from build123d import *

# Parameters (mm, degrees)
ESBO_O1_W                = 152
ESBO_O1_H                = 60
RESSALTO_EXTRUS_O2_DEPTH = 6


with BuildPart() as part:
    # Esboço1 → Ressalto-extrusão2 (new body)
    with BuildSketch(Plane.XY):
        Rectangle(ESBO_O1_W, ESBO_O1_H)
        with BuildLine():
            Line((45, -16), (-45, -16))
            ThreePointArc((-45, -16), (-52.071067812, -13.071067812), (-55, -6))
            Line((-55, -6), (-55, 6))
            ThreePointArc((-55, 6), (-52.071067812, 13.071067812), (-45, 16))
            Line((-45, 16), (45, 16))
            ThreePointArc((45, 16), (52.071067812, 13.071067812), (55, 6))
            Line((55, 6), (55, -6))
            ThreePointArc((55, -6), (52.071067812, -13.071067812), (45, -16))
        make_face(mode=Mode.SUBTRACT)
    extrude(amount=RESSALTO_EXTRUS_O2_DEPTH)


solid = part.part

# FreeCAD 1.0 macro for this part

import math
import FreeCAD as App
import Part
import Sketcher
from FreeCAD import Vector
Q = App.Units.Quantity

doc = App.newDocument("Part")
body = doc.addObject("PartDesign::Body", "Body")

# Sketch on XY plane
sketch1 = doc.addObject("Sketcher::SketchObject", "Sketch")
body.addObject(sketch1)
sketch1.AttachmentSupport = (doc.XY_Plane, [""])
sketch1.MapMode = "FlatFace"
sketch1.addGeometry([
    Part.LineSegment(Vector(-76, 30, 0), Vector(-76, -30, 0)),  # 0
    Part.LineSegment(Vector(-76, -30, 0), Vector(76, -30, 0)),  # 1
    Part.LineSegment(Vector(76, -30, 0), Vector(76, 30, 0)),  # 2
    Part.LineSegment(Vector(76, 30, 0), Vector(-76, 30, 0)),  # 3
    Part.ArcOfCircle(Part.Circle(Vector(45, -6, 0), Vector(0, 0, 1), 10), math.radians(-90), math.radians(0)),  # 4
    Part.LineSegment(Vector(45, -16, 0), Vector(-45, -16, 0)),  # 5
    Part.ArcOfCircle(Part.Circle(Vector(-45, -6, 0), Vector(0, 0, 1), 10), math.radians(180), math.radians(270)),  # 6
    Part.LineSegment(Vector(-55, -6, 0), Vector(-55, 6, 0)),  # 7
    Part.ArcOfCircle(Part.Circle(Vector(-45, 6, 0), Vector(0, 0, 1), 10), math.radians(90), math.radians(180)),  # 8
    Part.LineSegment(Vector(-45, 16, 0), Vector(45, 16, 0)),  # 9
    Part.ArcOfCircle(Part.Circle(Vector(45, 6, 0), Vector(0, 0, 1), 10), math.radians(0), math.radians(90)),  # 10
    Part.LineSegment(Vector(55, 6, 0), Vector(55, -6, 0)),  # 11
], False)
sketch1.addConstraint([
    Sketcher.Constraint("Coincident", 0, 2, 1, 1),
    Sketcher.Constraint("Coincident", 1, 2, 2, 1),
    Sketcher.Constraint("Coincident", 2, 2, 3, 1),
    Sketcher.Constraint("Coincident", 3, 2, 0, 1),
    Sketcher.Constraint("Tangent", 4, 1, 5, 1),
    Sketcher.Constraint("Tangent", 5, 2, 6, 2),
    Sketcher.Constraint("Tangent", 6, 1, 7, 1),
    Sketcher.Constraint("Tangent", 7, 2, 8, 2),
    Sketcher.Constraint("Tangent", 8, 1, 9, 1),
    Sketcher.Constraint("Tangent", 9, 2, 10, 2),
    Sketcher.Constraint("Tangent", 10, 1, 11, 1),
    Sketcher.Constraint("Tangent", 11, 2, 4, 2),
    Sketcher.Constraint("Vertical", 0),
    Sketcher.Constraint("Horizontal", 1),
    Sketcher.Constraint("Vertical", 2),
    Sketcher.Constraint("Horizontal", 3),
    Sketcher.Constraint("Horizontal", 5),
    Sketcher.Constraint("Vertical", 7),
    Sketcher.Constraint("Horizontal", 9),
    Sketcher.Constraint("Vertical", 11),
    Sketcher.Constraint("Equal", 4, 6),
    Sketcher.Constraint("Equal", 6, 8),
    Sketcher.Constraint("Equal", 8, 10),
    Sketcher.Constraint("Symmetric", 4, 3, 8, 3, -1, 1),
    Sketcher.Constraint("Symmetric", 0, 2, 2, 2, -1, 1),
    Sketcher.Constraint("Radius", 4, Q("10 mm")),
    Sketcher.Constraint("DistanceX", 1, 1, 1, 2, Q("152 mm")),
    Sketcher.Constraint("DistanceX", 5, 2, 5, 1, Q("90 mm")),
    Sketcher.Constraint("DistanceY", 0, 2, 0, 1, Q("60 mm")),
    Sketcher.Constraint("DistanceY", 7, 1, 7, 2, Q("12 mm")),
])
pad1 = doc.addObject("PartDesign::Pad", "Pad")
body.addObject(pad1)
pad1.Profile = sketch1
pad1.Length = 6

doc.recompute()
